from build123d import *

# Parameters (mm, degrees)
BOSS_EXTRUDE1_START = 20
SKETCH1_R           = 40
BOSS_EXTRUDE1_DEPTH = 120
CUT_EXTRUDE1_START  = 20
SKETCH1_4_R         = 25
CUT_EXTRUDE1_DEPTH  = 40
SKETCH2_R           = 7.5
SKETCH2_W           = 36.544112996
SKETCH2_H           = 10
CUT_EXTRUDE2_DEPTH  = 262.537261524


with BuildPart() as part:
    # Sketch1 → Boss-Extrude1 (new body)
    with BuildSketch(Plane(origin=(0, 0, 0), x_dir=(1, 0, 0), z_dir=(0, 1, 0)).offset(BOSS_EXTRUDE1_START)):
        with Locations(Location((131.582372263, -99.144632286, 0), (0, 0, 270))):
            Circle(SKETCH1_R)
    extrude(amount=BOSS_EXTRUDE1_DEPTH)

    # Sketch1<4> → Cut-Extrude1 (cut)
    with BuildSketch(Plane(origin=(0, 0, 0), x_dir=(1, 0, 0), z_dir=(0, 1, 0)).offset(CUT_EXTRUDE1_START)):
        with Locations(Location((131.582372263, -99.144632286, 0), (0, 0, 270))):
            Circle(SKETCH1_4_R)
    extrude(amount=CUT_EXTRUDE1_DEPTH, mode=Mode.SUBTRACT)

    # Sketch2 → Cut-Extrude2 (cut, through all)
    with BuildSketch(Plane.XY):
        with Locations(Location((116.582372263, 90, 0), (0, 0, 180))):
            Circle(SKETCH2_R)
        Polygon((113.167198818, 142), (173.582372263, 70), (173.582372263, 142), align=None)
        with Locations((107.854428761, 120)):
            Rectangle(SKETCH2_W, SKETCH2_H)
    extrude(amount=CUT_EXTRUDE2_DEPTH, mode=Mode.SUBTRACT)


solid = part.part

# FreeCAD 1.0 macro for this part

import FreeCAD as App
import Part
import Sketcher
Q = App.Units.Quantity

doc = App.newDocument("Part")
params = doc.addObject("Spreadsheet::Sheet", "Params")
for row, (alias, value) in enumerate([
    ("sketch1_diameter", "80 mm"),
    ("pad1_length", "120 mm"),
    ("sketch2_diameter", "50 mm"),
    ("pocket1_length", "40 mm"),
    ("sketch3_diameter", "15 mm"),
    ("sketch3_height", "72 mm"),
    ("sketch3_height2", "10 mm"),
], start=1):
    params.set(f"A{row}", alias)
    params.set(f"B{row}", "=" + value)
    params.setAlias(f"B{row}", alias)

body = doc.addObject("PartDesign::Body", "Body")

sketch1 = body.newObject("Sketcher::SketchObject", "Sketch")
sketch1.AttachmentSupport = (doc.getObject("XZ_Plane"), [""])
sketch1.MapMode = "FlatFace"
sketch1.AttachmentOffset = App.Placement(App.Vector(0, 0, -20), App.Rotation())
sketch1.addGeometry(Part.Circle(App.Vector(132, 99, 0), App.Vector(0, 0, 1), 40), False)
sketch1.addConstraint([
    Sketcher.Constraint("Diameter", 0, Q("80 mm")),
    Sketcher.Constraint("DistanceX", -1, 1, 0, 3, Q("131.582372 mm")),
    Sketcher.Constraint("DistanceY", -1, 1, 0, 3, Q("99.144632 mm")),
])
sketch1.setExpression("Constraints[0]", "Params.sketch1_diameter")
pad1 = body.newObject("PartDesign::Pad", "Pad")
pad1.Profile = sketch1
pad1.setExpression("Length", "Params.pad1_length")
pad1.Reversed = True

sketch2 = body.newObject("Sketcher::SketchObject", "Sketch001")
sketch2.AttachmentSupport = (doc.getObject("XZ_Plane"), [""])
sketch2.MapMode = "FlatFace"
sketch2.AttachmentOffset = App.Placement(App.Vector(0, 0, -20), App.Rotation())
sketch2.addGeometry(Part.Circle(App.Vector(132, 99, 0), App.Vector(0, 0, 1), 25), False)
sketch2.addConstraint([
    Sketcher.Constraint("Diameter", 0, Q("50 mm")),
    Sketcher.Constraint("DistanceX", -1, 1, 0, 3, Q("131.582372 mm")),
    Sketcher.Constraint("DistanceY", -1, 1, 0, 3, Q("99.144632 mm")),
])
sketch2.setExpression("Constraints[0]", "Params.sketch2_diameter")
pocket1 = body.newObject("PartDesign::Pocket", "Pocket")
pocket1.Profile = sketch2
pocket1.setExpression("Length", "Params.pocket1_length")

sketch3 = body.newObject("Sketcher::SketchObject", "Sketch002")
sketch3.AttachmentSupport = (doc.getObject("XY_Plane"), [""])
sketch3.MapMode = "FlatFace"
sketch3.addGeometry([
    Part.Circle(App.Vector(117, 90, 0), App.Vector(0, 0, 1), 8),
    Part.LineSegment(App.Vector(113, 142, 0), App.Vector(174, 70, 0)),
    Part.LineSegment(App.Vector(174, 70, 0), App.Vector(174, 142, 0)),
    Part.LineSegment(App.Vector(174, 142, 0), App.Vector(113, 142, 0)),
    Part.LineSegment(App.Vector(90, 125, 0), App.Vector(90, 115, 0)),
    Part.LineSegment(App.Vector(90, 115, 0), App.Vector(126, 115, 0)),
    Part.LineSegment(App.Vector(126, 115, 0), App.Vector(126, 125, 0)),
    Part.LineSegment(App.Vector(126, 125, 0), App.Vector(90, 125, 0)),
], False)
sketch3.addConstraint([
    Sketcher.Constraint("Coincident", 1, 2, 2, 1),
    Sketcher.Constraint("Coincident", 2, 2, 3, 1),
    Sketcher.Constraint("Coincident", 3, 2, 1, 1),
    Sketcher.Constraint("Coincident", 4, 2, 5, 1),
    Sketcher.Constraint("Coincident", 5, 2, 6, 1),
    Sketcher.Constraint("Coincident", 6, 2, 7, 1),
    Sketcher.Constraint("Coincident", 7, 2, 4, 1),
    Sketcher.Constraint("Vertical", 2),
    Sketcher.Constraint("Horizontal", 3),
    Sketcher.Constraint("Vertical", 4),
    Sketcher.Constraint("Horizontal", 5),
    Sketcher.Constraint("Vertical", 6),
    Sketcher.Constraint("Horizontal", 7),
    Sketcher.Constraint("Diameter", 0, Q("15 mm")),
    Sketcher.Constraint("DistanceY", 2, 1, 2, 2, Q("72 mm")),
    Sketcher.Constraint("DistanceY", 4, 2, 4, 1, Q("10 mm")),
    Sketcher.Constraint("Angle", 1, Q("-50 deg")),
    Sketcher.Constraint("DistanceY", -1, 1, 0, 3, Q("90 mm")),
    Sketcher.Constraint("DistanceY", -1, 1, 1, 2, Q("70 mm")),
    Sketcher.Constraint("DistanceY", -1, 1, 4, 2, Q("115 mm")),
    Sketcher.Constraint("DistanceX", 0, 3, 1, 2, Q("57 mm")),
    Sketcher.Constraint("DistanceX", 4, 2, 0, 3, Q("27 mm")),
    Sketcher.Constraint("DistanceX", -1, 1, 3, 2, Q("113.167199 mm")),
    Sketcher.Constraint("DistanceX", 5, 1, 5, 2, Q("36.544113 mm")),
])
sketch3.setExpression("Constraints[13]", "Params.sketch3_diameter")
sketch3.setExpression("Constraints[14]", "Params.sketch3_height")
sketch3.setExpression("Constraints[15]", "Params.sketch3_height2")
pocket2 = body.newObject("PartDesign::Pocket", "Pocket001")
pocket2.Profile = sketch3
pocket2.Type = "ThroughAll"
pocket2.Reversed = True

doc.recompute()
